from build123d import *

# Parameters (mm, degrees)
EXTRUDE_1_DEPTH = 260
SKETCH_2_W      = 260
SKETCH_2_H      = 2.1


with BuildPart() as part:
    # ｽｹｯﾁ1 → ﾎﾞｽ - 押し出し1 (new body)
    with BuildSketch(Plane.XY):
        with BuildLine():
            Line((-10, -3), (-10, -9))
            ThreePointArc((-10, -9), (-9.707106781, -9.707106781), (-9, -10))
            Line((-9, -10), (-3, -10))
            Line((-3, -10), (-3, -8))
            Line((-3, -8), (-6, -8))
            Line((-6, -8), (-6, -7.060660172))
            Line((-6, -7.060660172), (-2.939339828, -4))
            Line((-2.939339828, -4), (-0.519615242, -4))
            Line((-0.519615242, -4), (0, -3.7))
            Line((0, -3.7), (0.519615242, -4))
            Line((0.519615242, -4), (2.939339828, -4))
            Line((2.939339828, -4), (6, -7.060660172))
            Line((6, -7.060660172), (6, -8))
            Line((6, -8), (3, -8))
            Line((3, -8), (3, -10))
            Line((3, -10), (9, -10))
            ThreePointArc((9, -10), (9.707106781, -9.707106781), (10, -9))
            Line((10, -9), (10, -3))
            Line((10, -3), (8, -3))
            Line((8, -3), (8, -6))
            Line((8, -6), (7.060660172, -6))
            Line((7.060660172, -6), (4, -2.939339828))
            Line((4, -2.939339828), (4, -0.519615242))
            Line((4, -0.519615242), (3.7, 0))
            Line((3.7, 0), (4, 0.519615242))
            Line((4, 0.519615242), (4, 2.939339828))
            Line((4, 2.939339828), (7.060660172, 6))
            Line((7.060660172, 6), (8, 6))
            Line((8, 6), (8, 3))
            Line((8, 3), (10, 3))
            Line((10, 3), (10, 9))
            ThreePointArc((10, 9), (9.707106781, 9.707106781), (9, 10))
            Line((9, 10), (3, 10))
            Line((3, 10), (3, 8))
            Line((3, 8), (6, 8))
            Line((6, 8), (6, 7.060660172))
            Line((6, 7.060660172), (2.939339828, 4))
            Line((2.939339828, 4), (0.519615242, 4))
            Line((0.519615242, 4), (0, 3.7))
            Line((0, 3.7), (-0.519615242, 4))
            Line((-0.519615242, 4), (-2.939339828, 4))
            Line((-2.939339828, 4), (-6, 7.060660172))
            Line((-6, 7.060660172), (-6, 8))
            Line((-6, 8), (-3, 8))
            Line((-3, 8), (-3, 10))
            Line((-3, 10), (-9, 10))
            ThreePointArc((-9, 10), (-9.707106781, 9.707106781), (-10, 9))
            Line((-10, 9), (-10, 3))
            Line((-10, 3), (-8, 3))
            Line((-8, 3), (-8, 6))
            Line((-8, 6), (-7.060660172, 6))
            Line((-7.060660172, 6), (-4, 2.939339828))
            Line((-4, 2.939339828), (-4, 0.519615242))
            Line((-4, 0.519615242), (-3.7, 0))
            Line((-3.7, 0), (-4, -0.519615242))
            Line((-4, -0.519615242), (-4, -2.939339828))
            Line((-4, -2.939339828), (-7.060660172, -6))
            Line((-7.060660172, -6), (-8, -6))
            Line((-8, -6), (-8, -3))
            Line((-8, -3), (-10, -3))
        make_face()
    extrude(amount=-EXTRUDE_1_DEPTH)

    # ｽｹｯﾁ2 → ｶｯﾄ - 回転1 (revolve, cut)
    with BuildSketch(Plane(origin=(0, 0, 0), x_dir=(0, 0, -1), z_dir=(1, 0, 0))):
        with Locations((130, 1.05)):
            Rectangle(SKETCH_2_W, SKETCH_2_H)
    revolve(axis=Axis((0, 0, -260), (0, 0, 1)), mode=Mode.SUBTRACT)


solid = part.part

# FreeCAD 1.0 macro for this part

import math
import FreeCAD as App
import Part
import Sketcher

V = App.Vector
Q = App.Units.Quantity


def add_polygon(sketch, points):
    """Adds a closed chain of lines whose ends are joined by coincident constraints."""
    first, n = sketch.GeometryCount, len(points)
    for a, b in zip(points, points[1:] + points[:1]):
        sketch.addGeometry(Part.LineSegment(App.Vector(*a, 0), App.Vector(*b, 0)), False)
    for i in range(n):
        sketch.addConstraint(Sketcher.Constraint("Coincident", first + i, 2, first + (i + 1) % n, 1))

doc = App.newDocument("Part")
body = doc.addObject("PartDesign::Body", "Body")

sketch1 = doc.addObject("Sketcher::SketchObject", "Sketch")
body.addObject(sketch1)
sketch1.AttachmentSupport = (doc.XY_Plane, [""])
sketch1.MapMode = "FlatFace"
sketch1.addGeometry(Part.LineSegment(V(-10, -3, 0), V(-10, -9, 0)), False)
sketch1.addGeometry(Part.ArcOfCircle(Part.Circle(V(-9, -9, 0), V(0, 0, 1), 1), math.radians(-180), math.radians(-90)), False)
sketch1.addGeometry(Part.LineSegment(V(-9, -10, 0), V(-3, -10, 0)), False)
sketch1.addGeometry(Part.LineSegment(V(-3, -10, 0), V(-3, -8, 0)), False)
sketch1.addGeometry(Part.LineSegment(V(-3, -8, 0), V(-6, -8, 0)), False)
sketch1.addGeometry(Part.LineSegment(V(-6, -8, 0), V(-6, -7.06066, 0)), False)
sketch1.addGeometry(Part.LineSegment(V(-6, -7.06066, 0), V(-2.93934, -4, 0)), False)
sketch1.addGeometry(Part.LineSegment(V(-2.93934, -4, 0), V(-0.519615, -4, 0)), False)
sketch1.addGeometry(Part.LineSegment(V(-0.519615, -4, 0), V(0, -3.7, 0)), False)
sketch1.addGeometry(Part.LineSegment(V(0, -3.7, 0), V(0.519615, -4, 0)), False)
sketch1.addGeometry(Part.LineSegment(V(0.519615, -4, 0), V(2.93934, -4, 0)), False)
sketch1.addGeometry(Part.LineSegment(V(2.93934, -4, 0), V(6, -7.06066, 0)), False)
sketch1.addGeometry(Part.LineSegment(V(6, -7.06066, 0), V(6, -8, 0)), False)
sketch1.addGeometry(Part.LineSegment(V(6, -8, 0), V(3, -8, 0)), False)
sketch1.addGeometry(Part.LineSegment(V(3, -8, 0), V(3, -10, 0)), False)
sketch1.addGeometry(Part.LineSegment(V(3, -10, 0), V(9, -10, 0)), False)
sketch1.addGeometry(Part.ArcOfCircle(Part.Circle(V(9, -9, 0), V(0, 0, 1), 1), math.radians(-90), math.radians(0)), False)
sketch1.addGeometry(Part.LineSegment(V(10, -9, 0), V(10, -3, 0)), False)
sketch1.addGeometry(Part.LineSegment(V(10, -3, 0), V(8, -3, 0)), False)
sketch1.addGeometry(Part.LineSegment(V(8, -3, 0), V(8, -6, 0)), False)
sketch1.addGeometry(Part.LineSegment(V(8, -6, 0), V(7.06066, -6, 0)), False)
sketch1.addGeometry(Part.LineSegment(V(7.06066, -6, 0), V(4, -2.93934, 0)), False)
sketch1.addGeometry(Part.LineSegment(V(4, -2.93934, 0), V(4, -0.519615, 0)), False)
sketch1.addGeometry(Part.LineSegment(V(4, -0.519615, 0), V(3.7, 0, 0)), False)
sketch1.addGeometry(Part.LineSegment(V(3.7, 0, 0), V(4, 0.519615, 0)), False)
sketch1.addGeometry(Part.LineSegment(V(4, 0.519615, 0), V(4, 2.93934, 0)), False)
sketch1.addGeometry(Part.LineSegment(V(4, 2.93934, 0), V(7.06066, 6, 0)), False)
sketch1.addGeometry(Part.LineSegment(V(7.06066, 6, 0), V(8, 6, 0)), False)
sketch1.addGeometry(Part.LineSegment(V(8, 6, 0), V(8, 3, 0)), False)
sketch1.addGeometry(Part.LineSegment(V(8, 3, 0), V(10, 3, 0)), False)
sketch1.addGeometry(Part.LineSegment(V(10, 3, 0), V(10, 9, 0)), False)
sketch1.addGeometry(Part.ArcOfCircle(Part.Circle(V(9, 9, 0), V(0, 0, 1), 1), math.radians(0), math.radians(90)), False)
sketch1.addGeometry(Part.LineSegment(V(9, 10, 0), V(3, 10, 0)), False)
sketch1.addGeometry(Part.LineSegment(V(3, 10, 0), V(3, 8, 0)), False)
sketch1.addGeometry(Part.LineSegment(V(3, 8, 0), V(6, 8, 0)), False)
sketch1.addGeometry(Part.LineSegment(V(6, 8, 0), V(6, 7.06066, 0)), False)
sketch1.addGeometry(Part.LineSegment(V(6, 7.06066, 0), V(2.93934, 4, 0)), False)
sketch1.addGeometry(Part.LineSegment(V(2.93934, 4, 0), V(0.519615, 4, 0)), False)
sketch1.addGeometry(Part.LineSegment(V(0.519615, 4, 0), V(0, 3.7, 0)), False)
sketch1.addGeometry(Part.LineSegment(V(0, 3.7, 0), V(-0.519615, 4, 0)), False)
sketch1.addGeometry(Part.LineSegment(V(-0.519615, 4, 0), V(-2.93934, 4, 0)), False)
sketch1.addGeometry(Part.LineSegment(V(-2.93934, 4, 0), V(-6, 7.06066, 0)), False)
sketch1.addGeometry(Part.LineSegment(V(-6, 7.06066, 0), V(-6, 8, 0)), False)
sketch1.addGeometry(Part.LineSegment(V(-6, 8, 0), V(-3, 8, 0)), False)
sketch1.addGeometry(Part.LineSegment(V(-3, 8, 0), V(-3, 10, 0)), False)
sketch1.addGeometry(Part.LineSegment(V(-3, 10, 0), V(-9, 10, 0)), False)
sketch1.addGeometry(Part.ArcOfCircle(Part.Circle(V(-9, 9, 0), V(0, 0, 1), 1), math.radians(90), math.radians(180)), False)
sketch1.addGeometry(Part.LineSegment(V(-10, 9, 0), V(-10, 3, 0)), False)
sketch1.addGeometry(Part.LineSegment(V(-10, 3, 0), V(-8, 3, 0)), False)
sketch1.addGeometry(Part.LineSegment(V(-8, 3, 0), V(-8, 6, 0)), False)
sketch1.addGeometry(Part.LineSegment(V(-8, 6, 0), V(-7.06066, 6, 0)), False)
sketch1.addGeometry(Part.LineSegment(V(-7.06066, 6, 0), V(-4, 2.93934, 0)), False)
sketch1.addGeometry(Part.LineSegment(V(-4, 2.93934, 0), V(-4, 0.519615, 0)), False)
sketch1.addGeometry(Part.LineSegment(V(-4, 0.519615, 0), V(-3.7, 0, 0)), False)
sketch1.addGeometry(Part.LineSegment(V(-3.7, 0, 0), V(-4, -0.519615, 0)), False)
sketch1.addGeometry(Part.LineSegment(V(-4, -0.519615, 0), V(-4, -2.93934, 0)), False)
sketch1.addGeometry(Part.LineSegment(V(-4, -2.93934, 0), V(-7.06066, -6, 0)), False)
sketch1.addGeometry(Part.LineSegment(V(-7.06066, -6, 0), V(-8, -6, 0)), False)
sketch1.addGeometry(Part.LineSegment(V(-8, -6, 0), V(-8, -3, 0)), False)
sketch1.addGeometry(Part.LineSegment(V(-8, -3, 0), V(-10, -3, 0)), False)
sketch1.addConstraint(Sketcher.Constraint("Tangent", 0, 2, 1, 1))
sketch1.addConstraint(Sketcher.Constraint("Tangent", 1, 2, 2, 1))
sketch1.addConstraint(Sketcher.Constraint("Coincident", 2, 2, 3, 1))
sketch1.addConstraint(Sketcher.Constraint("Coincident", 3, 2, 4, 1))
sketch1.addConstraint(Sketcher.Constraint("Coincident", 4, 2, 5, 1))
sketch1.addConstraint(Sketcher.Constraint("Coincident", 5, 2, 6, 1))
sketch1.addConstraint(Sketcher.Constraint("Coincident", 6, 2, 7, 1))
sketch1.addConstraint(Sketcher.Constraint("Coincident", 7, 2, 8, 1))
sketch1.addConstraint(Sketcher.Constraint("Coincident", 8, 2, 9, 1))
sketch1.addConstraint(Sketcher.Constraint("Coincident", 9, 2, 10, 1))
sketch1.addConstraint(Sketcher.Constraint("Coincident", 10, 2, 11, 1))
sketch1.addConstraint(Sketcher.Constraint("Coincident", 11, 2, 12, 1))
sketch1.addConstraint(Sketcher.Constraint("Coincident", 12, 2, 13, 1))
sketch1.addConstraint(Sketcher.Constraint("Coincident", 13, 2, 14, 1))
sketch1.addConstraint(Sketcher.Constraint("Coincident", 14, 2, 15, 1))
sketch1.addConstraint(Sketcher.Constraint("Tangent", 15, 2, 16, 1))
sketch1.addConstraint(Sketcher.Constraint("Tangent", 16, 2, 17, 1))
sketch1.addConstraint(Sketcher.Constraint("Coincident", 17, 2, 18, 1))
sketch1.addConstraint(Sketcher.Constraint("Coincident", 18, 2, 19, 1))
sketch1.addConstraint(Sketcher.Constraint("Coincident", 19, 2, 20, 1))
sketch1.addConstraint(Sketcher.Constraint("Coincident", 20, 2, 21, 1))
sketch1.addConstraint(Sketcher.Constraint("Coincident", 21, 2, 22, 1))
sketch1.addConstraint(Sketcher.Constraint("Coincident", 22, 2, 23, 1))
sketch1.addConstraint(Sketcher.Constraint("Coincident", 23, 2, 24, 1))
sketch1.addConstraint(Sketcher.Constraint("Coincident", 24, 2, 25, 1))
sketch1.addConstraint(Sketcher.Constraint("Coincident", 25, 2, 26, 1))
sketch1.addConstraint(Sketcher.Constraint("Coincident", 26, 2, 27, 1))
sketch1.addConstraint(Sketcher.Constraint("Coincident", 27, 2, 28, 1))
sketch1.addConstraint(Sketcher.Constraint("Coincident", 28, 2, 29, 1))
sketch1.addConstraint(Sketcher.Constraint("Coincident", 29, 2, 30, 1))
sketch1.addConstraint(Sketcher.Constraint("Tangent", 30, 2, 31, 1))
sketch1.addConstraint(Sketcher.Constraint("Tangent", 31, 2, 32, 1))
sketch1.addConstraint(Sketcher.Constraint("Coincident", 32, 2, 33, 1))
sketch1.addConstraint(Sketcher.Constraint("Coincident", 33, 2, 34, 1))
sketch1.addConstraint(Sketcher.Constraint("Coincident", 34, 2, 35, 1))
sketch1.addConstraint(Sketcher.Constraint("Coincident", 35, 2, 36, 1))
sketch1.addConstraint(Sketcher.Constraint("Coincident", 36, 2, 37, 1))
sketch1.addConstraint(Sketcher.Constraint("Coincident", 37, 2, 38, 1))
sketch1.addConstraint(Sketcher.Constraint("Coincident", 38, 2, 39, 1))
sketch1.addConstraint(Sketcher.Constraint("Coincident", 39, 2, 40, 1))
sketch1.addConstraint(Sketcher.Constraint("Coincident", 40, 2, 41, 1))
sketch1.addConstraint(Sketcher.Constraint("Coincident", 41, 2, 42, 1))
sketch1.addConstraint(Sketcher.Constraint("Coincident", 42, 2, 43, 1))
sketch1.addConstraint(Sketcher.Constraint("Coincident", 43, 2, 44, 1))
sketch1.addConstraint(Sketcher.Constraint("Coincident", 44, 2, 45, 1))
sketch1.addConstraint(Sketcher.Constraint("Tangent", 45, 2, 46, 1))
sketch1.addConstraint(Sketcher.Constraint("Tangent", 46, 2, 47, 1))
sketch1.addConstraint(Sketcher.Constraint("Coincident", 47, 2, 48, 1))
sketch1.addConstraint(Sketcher.Constraint("Coincident", 48, 2, 49, 1))
sketch1.addConstraint(Sketcher.Constraint("Coincident", 49, 2, 50, 1))
sketch1.addConstraint(Sketcher.Constraint("Coincident", 50, 2, 51, 1))
sketch1.addConstraint(Sketcher.Constraint("Coincident", 51, 2, 52, 1))
sketch1.addConstraint(Sketcher.Constraint("Coincident", 52, 2, 53, 1))
sketch1.addConstraint(Sketcher.Constraint("Coincident", 53, 2, 54, 1))
sketch1.addConstraint(Sketcher.Constraint("Coincident", 54, 2, 55, 1))
sketch1.addConstraint(Sketcher.Constraint("Coincident", 55, 2, 56, 1))
sketch1.addConstraint(Sketcher.Constraint("Coincident", 56, 2, 57, 1))
sketch1.addConstraint(Sketcher.Constraint("Coincident", 57, 2, 58, 1))
sketch1.addConstraint(Sketcher.Constraint("Coincident", 58, 2, 59, 1))
sketch1.addConstraint(Sketcher.Constraint("Coincident", 59, 2, 0, 1))
sketch1.addConstraint(Sketcher.Constraint("Vertical", 0))
sketch1.addConstraint(Sketcher.Constraint("Horizontal", 2))
sketch1.addConstraint(Sketcher.Constraint("Vertical", 3))
sketch1.addConstraint(Sketcher.Constraint("Horizontal", 4))
sketch1.addConstraint(Sketcher.Constraint("Vertical", 5))
sketch1.addConstraint(Sketcher.Constraint("Horizontal", 7))
sketch1.addConstraint(Sketcher.Constraint("Horizontal", 10))
sketch1.addConstraint(Sketcher.Constraint("Vertical", 12))
sketch1.addConstraint(Sketcher.Constraint("Horizontal", 13))
sketch1.addConstraint(Sketcher.Constraint("Vertical", 14))
sketch1.addConstraint(Sketcher.Constraint("Horizontal", 15))
sketch1.addConstraint(Sketcher.Constraint("Vertical", 17))
sketch1.addConstraint(Sketcher.Constraint("Horizontal", 18))
sketch1.addConstraint(Sketcher.Constraint("Vertical", 19))
sketch1.addConstraint(Sketcher.Constraint("Horizontal", 20))
sketch1.addConstraint(Sketcher.Constraint("Vertical", 22))
sketch1.addConstraint(Sketcher.Constraint("Vertical", 25))
sketch1.addConstraint(Sketcher.Constraint("Horizontal", 27))
sketch1.addConstraint(Sketcher.Constraint("Vertical", 28))
sketch1.addConstraint(Sketcher.Constraint("Horizontal", 29))
sketch1.addConstraint(Sketcher.Constraint("Vertical", 30))
sketch1.addConstraint(Sketcher.Constraint("Horizontal", 32))
sketch1.addConstraint(Sketcher.Constraint("Vertical", 33))
sketch1.addConstraint(Sketcher.Constraint("Horizontal", 34))
sketch1.addConstraint(Sketcher.Constraint("Vertical", 35))
sketch1.addConstraint(Sketcher.Constraint("Horizontal", 37))
sketch1.addConstraint(Sketcher.Constraint("Horizontal", 40))
sketch1.addConstraint(Sketcher.Constraint("Vertical", 42))
sketch1.addConstraint(Sketcher.Constraint("Horizontal", 43))
sketch1.addConstraint(Sketcher.Constraint("Vertical", 44))
sketch1.addConstraint(Sketcher.Constraint("Horizontal", 45))
sketch1.addConstraint(Sketcher.Constraint("Vertical", 47))
sketch1.addConstraint(Sketcher.Constraint("Horizontal", 48))
sketch1.addConstraint(Sketcher.Constraint("Vertical", 49))
sketch1.addConstraint(Sketcher.Constraint("Horizontal", 50))
sketch1.addConstraint(Sketcher.Constraint("Vertical", 52))
sketch1.addConstraint(Sketcher.Constraint("Vertical", 55))
sketch1.addConstraint(Sketcher.Constraint("Horizontal", 57))
sketch1.addConstraint(Sketcher.Constraint("Vertical", 58))
sketch1.addConstraint(Sketcher.Constraint("Horizontal", 59))
sketch1.addConstraint(Sketcher.Constraint("Equal", 1, 16))
sketch1.addConstraint(Sketcher.Constraint("Equal", 16, 31))
sketch1.addConstraint(Sketcher.Constraint("Equal", 31, 46))
sketch1.addConstraint(Sketcher.Constraint("Symmetric", 1, 3, 31, 3, -1, 1))
sketch1.addConstraint(Sketcher.Constraint("Symmetric", 16, 3, 46, 3, -1, 1))
sketch1.addConstraint(Sketcher.Constraint("Symmetric", 3, 2, 33, 2, -1, 1))
sketch1.addConstraint(Sketcher.Constraint("Symmetric", 5, 2, 35, 2, -1, 1))
sketch1.addConstraint(Sketcher.Constraint("Symmetric", 6, 2, 36, 2, -1, 1))
sketch1.addConstraint(Sketcher.Constraint("Symmetric", 8, 2, 38, 2, -1, 1))
sketch1.addConstraint(Sketcher.Constraint("Symmetric", 9, 2, 39, 2, -1, 1))
sketch1.addConstraint(Sketcher.Constraint("Symmetric", 11, 2, 41, 2, -1, 1))
sketch1.addConstraint(Sketcher.Constraint("Symmetric", 13, 2, 43, 2, -1, 1))
sketch1.addConstraint(Sketcher.Constraint("Symmetric", 18, 2, 48, 2, -1, 1))
sketch1.addConstraint(Sketcher.Constraint("Symmetric", 20, 2, 50, 2, -1, 1))
sketch1.addConstraint(Sketcher.Constraint("Symmetric", 21, 2, 51, 2, -1, 1))
sketch1.addConstraint(Sketcher.Constraint("Symmetric", 23, 2, 53, 2, -1, 1))
sketch1.addConstraint(Sketcher.Constraint("Symmetric", 24, 2, 54, 2, -1, 1))
sketch1.addConstraint(Sketcher.Constraint("Symmetric", 26, 2, 56, 2, -1, 1))
sketch1.addConstraint(Sketcher.Constraint("Symmetric", 28, 2, 58, 2, -1, 1))
sketch1.addConstraint(Sketcher.Constraint("Symmetric", 1, 3, 16, 3, -2))
sketch1.addConstraint(Sketcher.Constraint("Symmetric", 7, 2, 9, 2, -2))
sketch1.addConstraint(Sketcher.Constraint("Symmetric", 5, 2, 11, 2, -2))
sketch1.addConstraint(Sketcher.Constraint("Symmetric", 3, 2, 13, 2, -2))
sketch1.addConstraint(Sketcher.Constraint("Symmetric", 28, 2, 48, 2, -2))
sketch1.addConstraint(Sketcher.Constraint("Symmetric", 26, 2, 50, 2, -2))
sketch1.addConstraint(Sketcher.Constraint("Symmetric", 25, 2, 51, 2, -2))
sketch1.addConstraint(Sketcher.Constraint("PointOnObject", 8, 2, -2))
sketch1.addConstraint(Sketcher.Constraint("PointOnObject", 23, 2, -1))
sketch1.addConstraint(Sketcher.Constraint("Perpendicular", 6, 11))
sketch1.addConstraint(Sketcher.Constraint("Parallel", 11, 21))
sketch1.addConstraint(Sketcher.Constraint("Perpendicular", 8, 23))
sketch1.addConstraint(Sketcher.Constraint("Perpendicular", 9, 24))
sketch1.addConstraint(Sketcher.Constraint("Perpendicular", 21, 26))
sketch1.addConstraint(Sketcher.Constraint("Perpendicular", 23, 38))
sketch1.addConstraint(Sketcher.Constraint("Perpendicular", 36, 41))
sketch1.addConstraint(Sketcher.Constraint("Perpendicular", 38, 53))
sketch1.addConstraint(Sketcher.Constraint("Perpendicular", 51, 56))
sketch1.addConstraint(Sketcher.Constraint("Equal", 45, 0))
sketch1.addConstraint(Sketcher.Constraint("Equal", 59, 3))
sketch1.addConstraint(Sketcher.Constraint("Equal", 57, 5))
sketch1.addConstraint(Sketcher.Constraint("Equal", 43, 19))
sketch1.addConstraint(Sketcher.Constraint("Equal", 40, 22))
sketch1.addConstraint(Sketcher.Constraint("Equal", 11, 21))
sketch1.addConstraint(Sketcher.Constraint("Equal", 9, 23))
sketch1.addConstraint(Sketcher.Constraint("Radius", 1, Q("1 mm")))
sketch1.addConstraint(Sketcher.Constraint("DistanceX", 2, 1, 2, 2, Q("6 mm")))
sketch1.addConstraint(Sketcher.Constraint("DistanceX", 4, 2, 4, 1, Q("3 mm")))
sketch1.addConstraint(Sketcher.Constraint("DistanceX", 18, 2, 18, 1, Q("2 mm")))
sketch1.addConstraint(Sketcher.Constraint("Angle", 8, Q("30 deg")))
sketch1.addConstraint(Sketcher.Constraint("DistanceX", 1, 3, -1, 1, Q("9 mm")))
sketch1.addConstraint(Sketcher.Constraint("DistanceY", 6, 2, -1, 1, Q("4 mm")))
sketch1.addConstraint(Sketcher.Constraint("Distance", 8, Q("0.6 mm")))
sketch1.addConstraint(Sketcher.Constraint("DistanceX", 20, 2, 20, 1, Q("0.93934 mm")))
pad1 = doc.addObject("PartDesign::Pad", "Pad")
body.addObject(pad1)
pad1.Profile = sketch1
pad1.Length = 260
pad1.Reversed = True

sketch2 = doc.addObject("Sketcher::SketchObject", "Sketch001")
body.addObject(sketch2)
sketch2.AttachmentSupport = (doc.YZ_Plane, [""])
sketch2.MapMode = "FlatFace"
add_polygon(sketch2, [(2.1, 0), (0, 0), (0, -260), (2.1, -260)])
sketch2.addConstraint(Sketcher.Constraint("Horizontal", 0))
sketch2.addConstraint(Sketcher.Constraint("Vertical", 1))
sketch2.addConstraint(Sketcher.Constraint("Horizontal", 2))
sketch2.addConstraint(Sketcher.Constraint("Vertical", 3))
sketch2.addConstraint(Sketcher.Constraint("Coincident", 0, 2, -1, 1))
sketch2.addConstraint(Sketcher.Constraint("DistanceY", 1, 2, 1, 1, Q("260 mm")))
sketch2.addConstraint(Sketcher.Constraint("DistanceX", 0, 2, 0, 1, Q("2.1 mm")))
groove = doc.addObject("PartDesign::Groove", "Groove")
body.addObject(groove)
groove.Profile = sketch2
groove.ReferenceAxis = (sketch2, ["V_Axis"])
groove.Angle = 360

doc.recompute()
